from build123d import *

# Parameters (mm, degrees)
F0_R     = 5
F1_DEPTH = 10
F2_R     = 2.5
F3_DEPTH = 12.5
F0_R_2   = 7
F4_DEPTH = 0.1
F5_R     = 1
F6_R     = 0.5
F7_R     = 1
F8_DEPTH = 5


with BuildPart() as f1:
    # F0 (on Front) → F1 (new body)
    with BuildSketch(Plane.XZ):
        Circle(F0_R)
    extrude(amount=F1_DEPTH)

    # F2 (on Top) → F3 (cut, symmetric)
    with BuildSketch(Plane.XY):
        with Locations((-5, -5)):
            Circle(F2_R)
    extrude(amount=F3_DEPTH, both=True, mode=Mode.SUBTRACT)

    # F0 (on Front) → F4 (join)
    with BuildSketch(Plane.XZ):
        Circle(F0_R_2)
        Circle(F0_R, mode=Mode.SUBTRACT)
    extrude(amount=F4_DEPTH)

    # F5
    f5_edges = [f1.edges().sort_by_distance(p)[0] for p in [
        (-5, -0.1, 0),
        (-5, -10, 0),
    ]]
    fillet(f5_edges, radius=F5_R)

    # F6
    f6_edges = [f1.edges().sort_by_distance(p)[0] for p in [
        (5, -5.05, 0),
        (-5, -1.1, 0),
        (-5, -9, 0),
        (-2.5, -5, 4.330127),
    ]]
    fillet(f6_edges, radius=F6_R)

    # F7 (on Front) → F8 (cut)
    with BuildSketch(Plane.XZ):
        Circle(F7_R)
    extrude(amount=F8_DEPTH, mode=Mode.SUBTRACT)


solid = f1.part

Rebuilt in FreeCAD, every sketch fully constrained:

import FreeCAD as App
import Part
import Sketcher
from FreeCAD import Vector


def edges_at(feature, points):
    """Names of the edges that pass closest to the given points."""
    edges = feature.Shape.Edges
    near = lambda p: min(range(len(edges)), key=lambda i: edges[i].distToShape(Part.Vertex(*p))[0])
    return sorted({f"Edge{near(p) + 1}" for p in points})

doc = App.newDocument("Part")
body = doc.addObject("PartDesign::Body", "Body")

# Sketch on XZ plane
sketch1 = body.newObject("Sketcher::SketchObject", "Sketch")
sketch1.AttachmentSupport = (doc.getObject("XZ_Plane"), [""])
sketch1.MapMode = "FlatFace"
sketch1.addGeometry(Part.Circle(Vector(0, 0, 0), Vector(0, 0, 1), 5), False)
sketch1.addConstraint([
    Sketcher.Constraint("Coincident", 0, 3, -1, 1),
    Sketcher.Constraint("Diameter", 0, 10.0),
])
pad1 = body.newObject("PartDesign::Pad", "Pad")
pad1.Profile = sketch1
pad1.Length = 10

# Sketch on XY plane
sketch2 = body.newObject("Sketcher::SketchObject", "Sketch001")
sketch2.AttachmentSupport = (doc.getObject("XY_Plane"), [""])
sketch2.MapMode = "FlatFace"
sketch2.addGeometry(Part.Circle(Vector(-5, -5, 0), Vector(0, 0, 1), 2.5), False)
sketch2.addConstraint([
    Sketcher.Constraint("Diameter", 0, 5.0),
    Sketcher.Constraint("DistanceX", 0, 3, -1, 1, 5.0),
    Sketcher.Constraint("DistanceY", 0, 3, -1, 1, 5.0),
])
pocket1 = body.newObject("PartDesign::Pocket", "Pocket")
pocket1.Profile = sketch2
pocket1.Length = 25
pocket1.Midplane = True

# Sketch on XZ plane
sketch3 = body.newObject("Sketcher::SketchObject", "Sketch002")
sketch3.AttachmentSupport = (doc.getObject("XZ_Plane"), [""])
sketch3.MapMode = "FlatFace"
sketch3.addGeometry([
    Part.Circle(Vector(0, 0, 0), Vector(0, 0, 1), 7),
    Part.Circle(Vector(0, 0, 0), Vector(0, 0, 1), 5),
], False)
sketch3.addConstraint([
    Sketcher.Constraint("Coincident", 0, 3, -1, 1),
    Sketcher.Constraint("Coincident", 1, 3, -1, 1),
    Sketcher.Constraint("Diameter", 0, 14.0),
    Sketcher.Constraint("Diameter", 1, 10.0),
])
pad2 = body.newObject("PartDesign::Pad", "Pad001")
pad2.Profile = sketch3
pad2.Length = 0.1
doc.recompute()

fillet = body.newObject("PartDesign::Fillet", "Fillet")
fillet.Base = (pad2, edges_at(pad2, [(-5, -0.1, 0), (-5, -10, 0)]))
fillet.Radius = 1
doc.recompute()

fillet2 = body.newObject("PartDesign::Fillet", "Fillet001")
fillet2.Base = (fillet, edges_at(fillet, [
    (5, -5.05, 0),
    (-5, -1.1, 0),
    (-5, -9, 0),
    (-2.5, -5, 4.33),
]))
fillet2.Radius = 0.5

# Sketch on XZ plane
sketch4 = body.newObject("Sketcher::SketchObject", "Sketch003")
sketch4.AttachmentSupport = (doc.getObject("XZ_Plane"), [""])
sketch4.MapMode = "FlatFace"
sketch4.addGeometry(Part.Circle(Vector(0, 0, 0), Vector(0, 0, 1), 1), False)
sketch4.addConstraint([
    Sketcher.Constraint("Coincident", 0, 3, -1, 1),
    Sketcher.Constraint("Diameter", 0, 2.0),
])
pocket2 = body.newObject("PartDesign::Pocket", "Pocket001")
pocket2.Profile = sketch4
pocket2.Length = 5
pocket2.Reversed = True

doc.recompute()
